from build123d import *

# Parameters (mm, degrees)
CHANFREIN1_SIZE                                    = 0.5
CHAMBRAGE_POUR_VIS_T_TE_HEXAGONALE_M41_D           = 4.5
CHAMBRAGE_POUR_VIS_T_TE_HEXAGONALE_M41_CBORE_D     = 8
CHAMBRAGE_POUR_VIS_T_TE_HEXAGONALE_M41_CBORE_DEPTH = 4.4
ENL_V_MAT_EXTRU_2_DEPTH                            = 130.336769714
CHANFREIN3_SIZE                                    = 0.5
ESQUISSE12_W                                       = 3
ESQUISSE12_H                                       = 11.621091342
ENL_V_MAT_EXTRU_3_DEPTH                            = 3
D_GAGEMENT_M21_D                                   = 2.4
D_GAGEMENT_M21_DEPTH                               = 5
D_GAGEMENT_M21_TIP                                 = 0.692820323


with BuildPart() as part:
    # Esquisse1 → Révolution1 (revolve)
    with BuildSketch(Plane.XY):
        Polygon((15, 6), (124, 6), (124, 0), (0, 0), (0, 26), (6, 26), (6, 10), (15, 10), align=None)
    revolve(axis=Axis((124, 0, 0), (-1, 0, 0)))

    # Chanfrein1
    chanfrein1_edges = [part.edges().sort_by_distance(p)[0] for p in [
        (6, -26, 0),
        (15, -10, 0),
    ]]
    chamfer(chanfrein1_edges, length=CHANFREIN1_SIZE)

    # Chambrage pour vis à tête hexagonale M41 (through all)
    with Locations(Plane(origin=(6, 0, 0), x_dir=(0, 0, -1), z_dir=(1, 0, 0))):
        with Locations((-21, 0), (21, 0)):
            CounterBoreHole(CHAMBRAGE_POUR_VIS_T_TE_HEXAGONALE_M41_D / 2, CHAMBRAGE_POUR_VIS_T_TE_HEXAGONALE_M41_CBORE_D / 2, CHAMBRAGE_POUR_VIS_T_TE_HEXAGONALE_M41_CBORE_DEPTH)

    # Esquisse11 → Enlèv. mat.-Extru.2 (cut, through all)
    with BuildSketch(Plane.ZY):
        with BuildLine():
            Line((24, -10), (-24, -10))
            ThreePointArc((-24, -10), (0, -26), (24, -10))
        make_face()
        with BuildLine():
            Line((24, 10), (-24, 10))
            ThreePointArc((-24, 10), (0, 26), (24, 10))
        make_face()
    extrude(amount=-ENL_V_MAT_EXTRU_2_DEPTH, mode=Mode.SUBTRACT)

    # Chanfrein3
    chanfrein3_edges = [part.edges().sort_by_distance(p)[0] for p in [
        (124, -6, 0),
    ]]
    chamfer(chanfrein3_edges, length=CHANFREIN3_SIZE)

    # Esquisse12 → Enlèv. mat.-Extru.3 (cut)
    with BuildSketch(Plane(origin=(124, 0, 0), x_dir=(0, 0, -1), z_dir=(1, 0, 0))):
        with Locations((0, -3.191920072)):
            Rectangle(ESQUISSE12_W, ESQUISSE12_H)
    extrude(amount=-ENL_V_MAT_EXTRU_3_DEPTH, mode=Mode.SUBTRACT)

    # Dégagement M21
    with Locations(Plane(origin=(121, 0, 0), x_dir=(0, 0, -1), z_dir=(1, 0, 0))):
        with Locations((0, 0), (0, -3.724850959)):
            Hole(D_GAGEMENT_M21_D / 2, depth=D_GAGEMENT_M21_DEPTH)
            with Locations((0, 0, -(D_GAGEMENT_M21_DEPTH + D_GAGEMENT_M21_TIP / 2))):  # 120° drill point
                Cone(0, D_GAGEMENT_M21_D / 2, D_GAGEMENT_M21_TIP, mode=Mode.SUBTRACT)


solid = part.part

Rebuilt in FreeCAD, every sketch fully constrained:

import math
import FreeCAD as App
import Part
import Sketcher
Q = App.Units.Quantity


def edges_at(feature, points):
    """Names of the edges that pass closest to the given points."""
    edges = feature.Shape.Edges
    near = lambda p: min(range(len(edges)), key=lambda i: edges[i].distToShape(Part.Vertex(*p))[0])
    return sorted({f"Edge{near(p) + 1}" for p in points})


def add_polygon(sketch, points):
    """Adds a closed chain of lines whose ends are joined by coincident constraints."""
    first, n = sketch.GeometryCount, len(points)
    for a, b in zip(points, points[1:] + points[:1]):
        sketch.addGeometry(Part.LineSegment(App.Vector(*a, 0), App.Vector(*b, 0)), False)
    for i in range(n):
        sketch.addConstraint(Sketcher.Constraint("Coincident", first + i, 2, first + (i + 1) % n, 1))

doc = App.newDocument("Part")
params = doc.addObject("Spreadsheet::Sheet", "Params")
for row, (alias, value) in enumerate([
    ("sketch1_width", "109 mm"),
    ("sketch1_width2", "9 mm"),
    ("sketch1_width3", "6 mm"),
    ("sketch1_height", "4 mm"),
    ("sketch1_height2", "16 mm"),
    ("revolution_angle", "360 deg"),
    ("chamfer_size", "0.5 mm"),
    ("sketch2_diameter", "4.5 mm"),
    ("hole_diameter", "4.5 mm"),
    ("hole_cbore_diameter", "8 mm"),
    ("hole_cbore_depth", "4.4 mm"),
    ("sketch3_radius", "26 mm"),
    ("sketch3_height", "48 mm"),
    ("chamfer2_size", "0.5 mm"),
    ("sketch4_height", "3 mm"),
    ("pocket2_length", "3 mm"),
    ("sketch5_diameter", "2.4 mm"),
    ("hole2_diameter", "2.4 mm"),
    ("hole2_depth", "5 mm"),
], start=1):
    params.set(f"A{row}", alias)
    params.set(f"B{row}", "=" + value)
    params.setAlias(f"B{row}", alias)

body = doc.addObject("PartDesign::Body", "Body")

# Sketch on XY plane
sketch1 = body.newObject("Sketcher::SketchObject", "Sketch")
sketch1.AttachmentSupport = (doc.getObject("XY_Plane"), [""])
sketch1.MapMode = "FlatFace"
add_polygon(sketch1, [(124, 6), (15, 6), (15, 10), (6, 10), (6, 26), (0, 26), (0, 0), (124, 0)])  # lines 0-7
sketch1.addConstraint([
    Sketcher.Constraint("Horizontal", 0),
    Sketcher.Constraint("Vertical", 1),
    Sketcher.Constraint("Horizontal", 2),
    Sketcher.Constraint("Vertical", 3),
    Sketcher.Constraint("Horizontal", 4),
    Sketcher.Constraint("Vertical", 5),
    Sketcher.Constraint("Horizontal", 6),
    Sketcher.Constraint("Vertical", 7),
    Sketcher.Constraint("Coincident", 5, 2, -1, 1),
    Sketcher.Constraint("Equal", 4, 7),
    Sketcher.Constraint("DistanceX", 0, 2, 0, 1, Q("109 mm")),
    Sketcher.Constraint("DistanceX", 2, 2, 2, 1, Q("9 mm")),
    Sketcher.Constraint("DistanceX", 4, 2, 4, 1, Q("6 mm")),
    Sketcher.Constraint("DistanceY", 1, 1, 1, 2, Q("4 mm")),
    Sketcher.Constraint("DistanceY", 3, 1, 3, 2, Q("16 mm")),
])
sketch1.setExpression("Constraints[18]", "Params.sketch1_width")
sketch1.setExpression("Constraints[19]", "Params.sketch1_width2")
sketch1.setExpression("Constraints[20]", "Params.sketch1_width3")
sketch1.setExpression("Constraints[21]", "Params.sketch1_height")
sketch1.setExpression("Constraints[22]", "Params.sketch1_height2")
revolution = body.newObject("PartDesign::Revolution", "Revolution")
revolution.Profile = sketch1
revolution.ReferenceAxis = (sketch1, ["H_Axis"])
revolution.setExpression("Angle", "Params.revolution_angle")
doc.recompute()

chamfer = body.newObject("PartDesign::Chamfer", "Chamfer")
chamfer.Base = (revolution, edges_at(revolution, [(6, -26, 0), (15, -10, 0)]))
chamfer.setExpression("Size", "Params.chamfer_size")

# Sketch on YZ plane
sketch2 = body.newObject("Sketcher::SketchObject", "Sketch001")
sketch2.AttachmentSupport = (doc.getObject("YZ_Plane"), [""])
sketch2.MapMode = "FlatFace"
sketch2.AttachmentOffset = App.Placement(App.Vector(0, 0, 6), App.Rotation())
sketch2.addGeometry([
    Part.Circle(App.Vector(0, 21, 0), App.Vector(0, 0, 1), 2.2),
    Part.Circle(App.Vector(0, -21, 0), App.Vector(0, 0, 1), 2.2),
], False)
sketch2.addConstraint([
    Sketcher.Constraint("Equal", 0, 1),
    Sketcher.Constraint("Symmetric", 0, 3, 1, 3, -1, 1),
    Sketcher.Constraint("PointOnObject", 0, 3, -2),
    Sketcher.Constraint("Diameter", 0, Q("4.5 mm")),
    Sketcher.Constraint("DistanceY", -1, 1, 0, 3, Q("21 mm")),
])
sketch2.setExpression("Constraints[3]", "Params.sketch2_diameter")
doc.recompute()
hole = body.newObject("PartDesign::Hole", "Hole")
hole.Profile = sketch2
hole.ThreadType = "None"
hole.setExpression("Diameter", "Params.hole_diameter")
hole.DepthType = "ThroughAll"
hole.HoleCutType = "Counterbore"
hole.setExpression("HoleCutDiameter", "Params.hole_cbore_diameter")
hole.setExpression("HoleCutDepth", "Params.hole_cbore_depth")

# Sketch on YZ plane
sketch3 = body.newObject("Sketcher::SketchObject", "Sketch002")
sketch3.AttachmentSupport = (doc.getObject("YZ_Plane"), [""])
sketch3.MapMode = "FlatFace"
sketch3.addGeometry([
    Part.LineSegment(App.Vector(-10, 24, 0), App.Vector(-10, -24, 0)),
    Part.ArcOfCircle(Part.Circle(App.Vector(0, 0, 0), App.Vector(0, 0, 1), 26), math.radians(113), math.radians(247)),
    Part.LineSegment(App.Vector(10, -24, 0), App.Vector(10, 24, 0)),
    Part.ArcOfCircle(Part.Circle(App.Vector(0, 0, 0), App.Vector(0, 0, 1), 26), math.radians(-67), math.radians(67)),
], False)
sketch3.addConstraint([
    Sketcher.Constraint("Coincident", 0, 1, 1, 1),
    Sketcher.Constraint("Coincident", 1, 2, 0, 2),
    Sketcher.Constraint("Coincident", 2, 1, 3, 1),
    Sketcher.Constraint("Coincident", 3, 2, 2, 2),
    Sketcher.Constraint("Vertical", 0),
    Sketcher.Constraint("Vertical", 2),
    Sketcher.Constraint("Coincident", 1, 3, -1, 1),
    Sketcher.Constraint("Coincident", 3, 3, -1, 1),
    Sketcher.Constraint("Equal", 1, 3),
    Sketcher.Constraint("Horizontal", 1, 2, 2, 1),
    Sketcher.Constraint("Radius", 1, Q("26 mm")),
    Sketcher.Constraint("DistanceY", 0, 2, 0, 1, Q("48 mm")),
])
sketch3.setExpression("Constraints[10]", "Params.sketch3_radius")
sketch3.setExpression("Constraints[11]", "Params.sketch3_height")
pocket1 = body.newObject("PartDesign::Pocket", "Pocket")
pocket1.Profile = sketch3
pocket1.Type = "ThroughAll"
pocket1.Reversed = True
doc.recompute()

chamfer2 = body.newObject("PartDesign::Chamfer", "Chamfer001")
chamfer2.Base = (pocket1, edges_at(pocket1, [(124, -6, 0)]))
chamfer2.setExpression("Size", "Params.chamfer2_size")

# Sketch on YZ plane
sketch4 = body.newObject("Sketcher::SketchObject", "Sketch003")
sketch4.AttachmentSupport = (doc.getObject("YZ_Plane"), [""])
sketch4.MapMode = "FlatFace"
sketch4.AttachmentOffset = App.Placement(App.Vector(0, 0, 124), App.Rotation())
add_polygon(sketch4, [(2.6, 1.5), (-9, 1.5), (-9, -1.5), (2.6, -1.5)])  # lines 0-3
sketch4.addConstraint([
    Sketcher.Constraint("Horizontal", 0),
    Sketcher.Constraint("Vertical", 1),
    Sketcher.Constraint("Horizontal", 2),
    Sketcher.Constraint("Vertical", 3),
    Sketcher.Constraint("DistanceY", 1, 2, 1, 1, Q("3 mm")),
    Sketcher.Constraint("DistanceY", -1, 1, 0, 2, Q("1.5 mm")),
    Sketcher.Constraint("DistanceX", 0, 2, 0, 1, Q("11.621091 mm")),
    Sketcher.Constraint("DistanceX", 0, 2, -1, 1, Q("9.002466 mm")),
])
sketch4.setExpression("Constraints[8]", "Params.sketch4_height")
pocket2 = body.newObject("PartDesign::Pocket", "Pocket001")
pocket2.Profile = sketch4
pocket2.setExpression("Length", "Params.pocket2_length")

# Sketch on YZ plane
sketch5 = body.newObject("Sketcher::SketchObject", "Sketch004")
sketch5.AttachmentSupport = (doc.getObject("YZ_Plane"), [""])
sketch5.MapMode = "FlatFace"
sketch5.AttachmentOffset = App.Placement(App.Vector(0, 0, 121), App.Rotation())
sketch5.addGeometry([
    Part.Circle(App.Vector(0, 0, 0), App.Vector(0, 0, 1), 1.2),
    Part.Circle(App.Vector(-3.7, 0, 0), App.Vector(0, 0, 1), 1.2),
], False)
sketch5.addConstraint([
    Sketcher.Constraint("Coincident", 0, 3, -1, 1),
    Sketcher.Constraint("Equal", 0, 1),
    Sketcher.Constraint("PointOnObject", 1, 3, -1),
    Sketcher.Constraint("Diameter", 0, Q("2.4 mm")),
    Sketcher.Constraint("DistanceX", 1, 3, -1, 1, Q("3.724851 mm")),
])
sketch5.setExpression("Constraints[3]", "Params.sketch5_diameter")
doc.recompute()
hole2 = body.newObject("PartDesign::Hole", "Hole001")
hole2.Profile = sketch5
hole2.ThreadType = "None"
hole2.setExpression("Diameter", "Params.hole2_diameter")
hole2.DepthType = "Dimension"
hole2.setExpression("Depth", "Params.hole2_depth")
hole2.DrillPoint = "Angled"
hole2.DrillPointAngle = 120

doc.recompute()
